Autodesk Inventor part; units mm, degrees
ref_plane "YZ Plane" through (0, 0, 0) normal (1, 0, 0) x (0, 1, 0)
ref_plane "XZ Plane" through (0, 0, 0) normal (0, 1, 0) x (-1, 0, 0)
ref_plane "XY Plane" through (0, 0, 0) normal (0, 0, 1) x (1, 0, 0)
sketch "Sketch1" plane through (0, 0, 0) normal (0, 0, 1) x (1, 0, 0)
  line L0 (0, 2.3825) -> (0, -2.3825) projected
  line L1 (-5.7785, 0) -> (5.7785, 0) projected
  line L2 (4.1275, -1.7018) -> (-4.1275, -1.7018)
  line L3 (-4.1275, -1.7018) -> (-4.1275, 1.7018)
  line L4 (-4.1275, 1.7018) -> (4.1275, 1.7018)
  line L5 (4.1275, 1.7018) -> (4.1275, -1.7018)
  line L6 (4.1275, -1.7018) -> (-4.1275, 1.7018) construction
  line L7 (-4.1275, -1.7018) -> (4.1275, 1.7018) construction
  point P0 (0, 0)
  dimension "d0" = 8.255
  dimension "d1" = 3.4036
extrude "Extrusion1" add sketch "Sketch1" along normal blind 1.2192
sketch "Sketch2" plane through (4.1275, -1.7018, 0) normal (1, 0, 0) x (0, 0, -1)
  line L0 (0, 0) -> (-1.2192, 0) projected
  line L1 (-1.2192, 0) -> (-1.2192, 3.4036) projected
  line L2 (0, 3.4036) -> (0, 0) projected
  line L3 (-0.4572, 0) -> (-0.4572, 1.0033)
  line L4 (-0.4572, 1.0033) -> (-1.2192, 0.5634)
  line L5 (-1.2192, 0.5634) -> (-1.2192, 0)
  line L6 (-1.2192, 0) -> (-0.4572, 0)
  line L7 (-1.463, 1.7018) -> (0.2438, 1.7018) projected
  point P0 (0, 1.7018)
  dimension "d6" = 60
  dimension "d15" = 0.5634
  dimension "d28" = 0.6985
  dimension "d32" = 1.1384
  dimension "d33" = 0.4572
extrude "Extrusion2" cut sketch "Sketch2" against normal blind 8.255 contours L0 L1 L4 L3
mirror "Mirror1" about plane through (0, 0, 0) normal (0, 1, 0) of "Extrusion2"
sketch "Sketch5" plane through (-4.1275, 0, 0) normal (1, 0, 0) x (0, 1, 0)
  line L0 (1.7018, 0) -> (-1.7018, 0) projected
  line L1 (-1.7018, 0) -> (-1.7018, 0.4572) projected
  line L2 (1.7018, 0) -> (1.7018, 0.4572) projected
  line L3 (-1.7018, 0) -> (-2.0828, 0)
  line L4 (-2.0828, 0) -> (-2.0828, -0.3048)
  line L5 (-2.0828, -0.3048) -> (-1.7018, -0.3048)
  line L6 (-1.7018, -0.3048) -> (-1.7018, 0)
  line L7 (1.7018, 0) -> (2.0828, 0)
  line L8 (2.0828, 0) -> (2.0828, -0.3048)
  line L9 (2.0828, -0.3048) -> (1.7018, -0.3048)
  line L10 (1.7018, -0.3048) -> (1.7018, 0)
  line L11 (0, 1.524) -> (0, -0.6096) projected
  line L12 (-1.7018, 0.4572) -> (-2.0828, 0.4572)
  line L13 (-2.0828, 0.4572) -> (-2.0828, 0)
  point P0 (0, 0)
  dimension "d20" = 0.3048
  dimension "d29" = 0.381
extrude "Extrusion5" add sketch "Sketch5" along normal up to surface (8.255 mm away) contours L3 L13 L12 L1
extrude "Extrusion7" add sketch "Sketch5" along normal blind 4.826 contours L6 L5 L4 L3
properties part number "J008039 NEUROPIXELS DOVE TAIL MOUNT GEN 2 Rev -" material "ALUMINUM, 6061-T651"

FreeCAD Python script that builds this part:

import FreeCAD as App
import Part
import Sketcher
from FreeCAD import Vector
Q = App.Units.Quantity

doc = App.newDocument("Part")
params = doc.addObject("Spreadsheet::Sheet", "Params")
for row, (alias, value) in enumerate([
    ("sketch1_width", "0.325 in"),
    ("sketch1_height", "0.134 in"),
    ("pad1_length", "0.048 in"),
    ("sketch2_height", "0.03 in"),
    ("pocket1_length", "0.325 in"),
    ("sketch3_width", "0.015 in"),
    ("sketch3_height", "0.018 in"),
    ("pad2_length", "0.325 in"),
    ("sketch4_width", "0.015 in"),
    ("sketch4_height", "0.012 in"),
    ("pad3_length", "0.19 in"),
], start=1):
    params.set(f"A{row}", alias)
    params.set(f"B{row}", "=" + value)
    params.setAlias(f"B{row}", alias)

body = doc.addObject("PartDesign::Body", "Body")

# Sketch on XY plane
sketch1 = doc.addObject("Sketcher::SketchObject", "Sketch")
body.addObject(sketch1)
sketch1.AttachmentSupport = (doc.XY_Plane, [""])
sketch1.MapMode = "FlatFace"
sketch1.addGeometry(Part.LineSegment(Vector(4.1, 1.7, 0), Vector(-4.1, 1.7, 0)), False)
sketch1.addGeometry(Part.LineSegment(Vector(-4.1, 1.7, 0), Vector(-4.1, -1.7, 0)), False)
sketch1.addGeometry(Part.LineSegment(Vector(-4.1, -1.7, 0), Vector(4.1, -1.7, 0)), False)
sketch1.addGeometry(Part.LineSegment(Vector(4.1, -1.7, 0), Vector(4.1, 1.7, 0)), False)
sketch1.addConstraint(Sketcher.Constraint("Coincident", 0, 2, 1, 1))
sketch1.addConstraint(Sketcher.Constraint("Coincident", 1, 2, 2, 1))
sketch1.addConstraint(Sketcher.Constraint("Coincident", 2, 2, 3, 1))
sketch1.addConstraint(Sketcher.Constraint("Coincident", 3, 2, 0, 1))
sketch1.addConstraint(Sketcher.Constraint("Horizontal", 0))
sketch1.addConstraint(Sketcher.Constraint("Vertical", 1))
sketch1.addConstraint(Sketcher.Constraint("Horizontal", 2))
sketch1.addConstraint(Sketcher.Constraint("Vertical", 3))
sketch1.addConstraint(Sketcher.Constraint("Symmetric", 0, 2, 2, 2, -1, 1))
sketch1.addConstraint(Sketcher.Constraint("DistanceX", 0, 2, 0, 1, Q("0.325 in")))
sketch1.addConstraint(Sketcher.Constraint("DistanceY", 1, 2, 1, 1, Q("0.134 in")))
sketch1.setExpression("Constraints[9]", "Params.sketch1_width")
sketch1.setExpression("Constraints[10]", "Params.sketch1_height")
pad1 = doc.addObject("PartDesign::Pad", "Pad")
body.addObject(pad1)
pad1.Profile = sketch1
pad1.setExpression("Length", "Params.pad1_length")

# Sketch on YZ plane
sketch2 = doc.addObject("Sketcher::SketchObject", "Sketch001")
body.addObject(sketch2)
sketch2.AttachmentSupport = (doc.YZ_Plane, [""])
sketch2.MapMode = "FlatFace"
sketch2.AttachmentOffset = App.Placement(Vector(0, 0, 0.1625 * 25.4), App.Rotation())
sketch2.addGeometry(Part.LineSegment(Vector(-1.7, 1.2, 0), Vector(-1.7, 0.5, 0)), False)
sketch2.addGeometry(Part.LineSegment(Vector(-1.7, 0.5, 0), Vector(-0.7, 0.5, 0)), False)
sketch2.addGeometry(Part.LineSegment(Vector(-0.7, 0.5, 0), Vector(-1.1, 1.2, 0)), False)
sketch2.addGeometry(Part.LineSegment(Vector(-1.1, 1.2, 0), Vector(-1.7, 1.2, 0)), False)
sketch2.addConstraint(Sketcher.Constraint("Coincident", 0, 2, 1, 1))
sketch2.addConstraint(Sketcher.Constraint("Coincident", 1, 2, 2, 1))
sketch2.addConstraint(Sketcher.Constraint("Coincident", 2, 2, 3, 1))
sketch2.addConstraint(Sketcher.Constraint("Coincident", 3, 2, 0, 1))
sketch2.addConstraint(Sketcher.Constraint("Vertical", 0))
sketch2.addConstraint(Sketcher.Constraint("Horizontal", 1))
sketch2.addConstraint(Sketcher.Constraint("Horizontal", 3))
sketch2.addConstraint(Sketcher.Constraint("DistanceY", -1, 1, 0, 2, Q("0.018 in")))
sketch2.addConstraint(Sketcher.Constraint("DistanceX", 3, 2, 3, 1, 0.5634))
sketch2.addConstraint(Sketcher.Constraint("DistanceY", 0, 2, 0, 1, Q("0.03 in")))
sketch2.addConstraint(Sketcher.Constraint("DistanceX", 1, 2, -1, 1, Q("0.0275 in")))
sketch2.addConstraint(Sketcher.Constraint("DistanceX", 2, 2, -1, 1, 1.1384))
sketch2.setExpression("Constraints[9]", "Params.sketch2_height")
pocket1 = doc.addObject("PartDesign::Pocket", "Pocket")
body.addObject(pocket1)
pocket1.Profile = sketch2
pocket1.setExpression("Length", "Params.pocket1_length")
doc.recompute()

mirrored = doc.addObject("PartDesign::Mirrored", "Mirrored")
body.addObject(mirrored)
mirrored.Originals = [pocket1]
mirrored.MirrorPlane = (doc.XZ_Plane, [""])
body.Tip = mirrored

# Sketch on YZ plane
sketch3 = doc.addObject("Sketcher::SketchObject", "Sketch002")
body.addObject(sketch3)
sketch3.AttachmentSupport = (doc.YZ_Plane, [""])
sketch3.MapMode = "FlatFace"
sketch3.AttachmentOffset = App.Placement(Vector(0, 0, -0.1625 * 25.4), App.Rotation())
sketch3.addGeometry(Part.LineSegment(Vector(-2.08, 0, 0), Vector(-1.7, 0, 0)), False)
sketch3.addGeometry(Part.LineSegment(Vector(-1.7, 0, 0), Vector(-1.7, 0.46, 0)), False)
sketch3.addGeometry(Part.LineSegment(Vector(-1.7, 0.46, 0), Vector(-2.08, 0.46, 0)), False)
sketch3.addGeometry(Part.LineSegment(Vector(-2.08, 0.46, 0), Vector(-2.08, 0, 0)), False)
sketch3.addConstraint(Sketcher.Constraint("Coincident", 0, 2, 1, 1))
sketch3.addConstraint(Sketcher.Constraint("Coincident", 1, 2, 2, 1))
sketch3.addConstraint(Sketcher.Constraint("Coincident", 2, 2, 3, 1))
sketch3.addConstraint(Sketcher.Constraint("Coincident", 3, 2, 0, 1))
sketch3.addConstraint(Sketcher.Constraint("Horizontal", 0))
sketch3.addConstraint(Sketcher.Constraint("Vertical", 1))
sketch3.addConstraint(Sketcher.Constraint("Horizontal", 2))
sketch3.addConstraint(Sketcher.Constraint("Vertical", 3))
sketch3.addConstraint(Sketcher.Constraint("PointOnObject", 0, 2, -1))
sketch3.addConstraint(Sketcher.Constraint("DistanceX", 0, 1, 0, 2, Q("0.015 in")))
sketch3.addConstraint(Sketcher.Constraint("DistanceY", 1, 1, 1, 2, Q("0.018 in")))
sketch3.addConstraint(Sketcher.Constraint("DistanceX", 0, 2, -1, 1, Q("0.067 in")))
sketch3.setExpression("Constraints[9]", "Params.sketch3_width")
sketch3.setExpression("Constraints[10]", "Params.sketch3_height")
pad2 = doc.addObject("PartDesign::Pad", "Pad001")
body.addObject(pad2)
pad2.Profile = sketch3
pad2.setExpression("Length", "Params.pad2_length")

# Sketch on YZ plane
sketch4 = doc.addObject("Sketcher::SketchObject", "Sketch003")
body.addObject(sketch4)
sketch4.AttachmentSupport = (doc.YZ_Plane, [""])
sketch4.MapMode = "FlatFace"
sketch4.AttachmentOffset = App.Placement(Vector(0, 0, -0.1625 * 25.4), App.Rotation())
sketch4.addGeometry(Part.LineSegment(Vector(-1.7, -0.3, 0), Vector(-1.7, 0, 0)), False)
sketch4.addGeometry(Part.LineSegment(Vector(-1.7, 0, 0), Vector(-2.08, 0, 0)), False)
sketch4.addGeometry(Part.LineSegment(Vector(-2.08, 0, 0), Vector(-2.08, -0.3, 0)), False)
sketch4.addGeometry(Part.LineSegment(Vector(-2.08, -0.3, 0), Vector(-1.7, -0.3, 0)), False)
sketch4.addConstraint(Sketcher.Constraint("Coincident", 0, 2, 1, 1))
sketch4.addConstraint(Sketcher.Constraint("Coincident", 1, 2, 2, 1))
sketch4.addConstraint(Sketcher.Constraint("Coincident", 2, 2, 3, 1))
sketch4.addConstraint(Sketcher.Constraint("Coincident", 3, 2, 0, 1))
sketch4.addConstraint(Sketcher.Constraint("Vertical", 0))
sketch4.addConstraint(Sketcher.Constraint("Horizontal", 1))
sketch4.addConstraint(Sketcher.Constraint("Vertical", 2))
sketch4.addConstraint(Sketcher.Constraint("Horizontal", 3))
sketch4.addConstraint(Sketcher.Constraint("PointOnObject", 0, 2, -1))
sketch4.addConstraint(Sketcher.Constraint("DistanceX", 1, 2, 1, 1, Q("0.015 in")))
sketch4.addConstraint(Sketcher.Constraint("DistanceY", 0, 1, 0, 2, Q("0.012 in")))
sketch4.addConstraint(Sketcher.Constraint("DistanceX", 0, 2, -1, 1, Q("0.067 in")))
sketch4.setExpression("Constraints[9]", "Params.sketch4_width")
sketch4.setExpression("Constraints[10]", "Params.sketch4_height")
pad3 = doc.addObject("PartDesign::Pad", "Pad002")
body.addObject(pad3)
pad3.Profile = sketch4
pad3.setExpression("Length", "Params.pad3_length")

doc.recompute()
